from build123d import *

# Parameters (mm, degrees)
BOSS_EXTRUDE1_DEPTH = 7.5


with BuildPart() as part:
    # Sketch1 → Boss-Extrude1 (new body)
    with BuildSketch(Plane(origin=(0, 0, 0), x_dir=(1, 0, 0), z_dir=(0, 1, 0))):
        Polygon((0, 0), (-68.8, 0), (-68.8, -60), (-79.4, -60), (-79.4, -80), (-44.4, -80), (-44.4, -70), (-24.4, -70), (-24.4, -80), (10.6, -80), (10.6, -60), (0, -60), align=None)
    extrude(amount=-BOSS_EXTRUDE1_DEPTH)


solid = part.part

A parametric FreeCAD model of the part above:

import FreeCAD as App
import Part
import Sketcher
Q = App.Units.Quantity


def add_polygon(sketch, points):
    """Adds a closed chain of lines whose ends are joined by coincident constraints."""
    first, n = sketch.GeometryCount, len(points)
    for a, b in zip(points, points[1:] + points[:1]):
        sketch.addGeometry(Part.LineSegment(App.Vector(*a, 0), App.Vector(*b, 0)), False)
    for i in range(n):
        sketch.addConstraint(Sketcher.Constraint("Coincident", first + i, 2, first + (i + 1) % n, 1))

doc = App.newDocument("Part")
body = doc.addObject("PartDesign::Body", "Body")

# Sketch on XZ plane
sketch1 = doc.addObject("Sketcher::SketchObject", "Sketch")
body.addObject(sketch1)
sketch1.AttachmentSupport = (doc.XZ_Plane, [""])
sketch1.MapMode = "FlatFace"
add_polygon(sketch1, [(0, 0), (-69, 0), (-69, 60), (-79, 60), (-79, 80), (-44, 80), (-44, 70), (-24, 70), (-24, 80), (11, 80), (11, 60), (0, 60)])  # lines 0-11
sketch1.addConstraint(Sketcher.Constraint("Horizontal", 0))
sketch1.addConstraint(Sketcher.Constraint("Vertical", 1))
sketch1.addConstraint(Sketcher.Constraint("Horizontal", 2))
sketch1.addConstraint(Sketcher.Constraint("Vertical", 3))
sketch1.addConstraint(Sketcher.Constraint("Horizontal", 4))
sketch1.addConstraint(Sketcher.Constraint("Vertical", 5))
sketch1.addConstraint(Sketcher.Constraint("Horizontal", 6))
sketch1.addConstraint(Sketcher.Constraint("Vertical", 7))
sketch1.addConstraint(Sketcher.Constraint("Horizontal", 8))
sketch1.addConstraint(Sketcher.Constraint("Vertical", 9))
sketch1.addConstraint(Sketcher.Constraint("Horizontal", 10))
sketch1.addConstraint(Sketcher.Constraint("Vertical", 11))
sketch1.addConstraint(Sketcher.Constraint("Coincident", 11, 2, -1, 1))
sketch1.addConstraint(Sketcher.Constraint("Horizontal", 4, 2, 7, 2))
sketch1.addConstraint(Sketcher.Constraint("Horizontal", 2, 2, 9, 2))
sketch1.addConstraint(Sketcher.Constraint("Equal", 4, 8))
sketch1.addConstraint(Sketcher.Constraint("Equal", 2, 10))
sketch1.addConstraint(Sketcher.Constraint("Equal", 6, 3))
sketch1.addConstraint(Sketcher.Constraint("DistanceX", 4, 1, 4, 2, Q("35 mm")))
sketch1.addConstraint(Sketcher.Constraint("DistanceX", 6, 1, 6, 2, Q("20 mm")))
sketch1.addConstraint(Sketcher.Constraint("DistanceY", 1, 1, 1, 2, Q("60 mm")))
sketch1.addConstraint(Sketcher.Constraint("DistanceY", 5, 2, 5, 1, Q("10 mm")))
sketch1.addConstraint(Sketcher.Constraint("DistanceX", 0, 2, 0, 1, Q("68.8 mm")))
pad1 = doc.addObject("PartDesign::Pad", "Pad")
body.addObject(pad1)
pad1.Profile = sketch1
pad1.Length = 7.5

doc.recompute()
